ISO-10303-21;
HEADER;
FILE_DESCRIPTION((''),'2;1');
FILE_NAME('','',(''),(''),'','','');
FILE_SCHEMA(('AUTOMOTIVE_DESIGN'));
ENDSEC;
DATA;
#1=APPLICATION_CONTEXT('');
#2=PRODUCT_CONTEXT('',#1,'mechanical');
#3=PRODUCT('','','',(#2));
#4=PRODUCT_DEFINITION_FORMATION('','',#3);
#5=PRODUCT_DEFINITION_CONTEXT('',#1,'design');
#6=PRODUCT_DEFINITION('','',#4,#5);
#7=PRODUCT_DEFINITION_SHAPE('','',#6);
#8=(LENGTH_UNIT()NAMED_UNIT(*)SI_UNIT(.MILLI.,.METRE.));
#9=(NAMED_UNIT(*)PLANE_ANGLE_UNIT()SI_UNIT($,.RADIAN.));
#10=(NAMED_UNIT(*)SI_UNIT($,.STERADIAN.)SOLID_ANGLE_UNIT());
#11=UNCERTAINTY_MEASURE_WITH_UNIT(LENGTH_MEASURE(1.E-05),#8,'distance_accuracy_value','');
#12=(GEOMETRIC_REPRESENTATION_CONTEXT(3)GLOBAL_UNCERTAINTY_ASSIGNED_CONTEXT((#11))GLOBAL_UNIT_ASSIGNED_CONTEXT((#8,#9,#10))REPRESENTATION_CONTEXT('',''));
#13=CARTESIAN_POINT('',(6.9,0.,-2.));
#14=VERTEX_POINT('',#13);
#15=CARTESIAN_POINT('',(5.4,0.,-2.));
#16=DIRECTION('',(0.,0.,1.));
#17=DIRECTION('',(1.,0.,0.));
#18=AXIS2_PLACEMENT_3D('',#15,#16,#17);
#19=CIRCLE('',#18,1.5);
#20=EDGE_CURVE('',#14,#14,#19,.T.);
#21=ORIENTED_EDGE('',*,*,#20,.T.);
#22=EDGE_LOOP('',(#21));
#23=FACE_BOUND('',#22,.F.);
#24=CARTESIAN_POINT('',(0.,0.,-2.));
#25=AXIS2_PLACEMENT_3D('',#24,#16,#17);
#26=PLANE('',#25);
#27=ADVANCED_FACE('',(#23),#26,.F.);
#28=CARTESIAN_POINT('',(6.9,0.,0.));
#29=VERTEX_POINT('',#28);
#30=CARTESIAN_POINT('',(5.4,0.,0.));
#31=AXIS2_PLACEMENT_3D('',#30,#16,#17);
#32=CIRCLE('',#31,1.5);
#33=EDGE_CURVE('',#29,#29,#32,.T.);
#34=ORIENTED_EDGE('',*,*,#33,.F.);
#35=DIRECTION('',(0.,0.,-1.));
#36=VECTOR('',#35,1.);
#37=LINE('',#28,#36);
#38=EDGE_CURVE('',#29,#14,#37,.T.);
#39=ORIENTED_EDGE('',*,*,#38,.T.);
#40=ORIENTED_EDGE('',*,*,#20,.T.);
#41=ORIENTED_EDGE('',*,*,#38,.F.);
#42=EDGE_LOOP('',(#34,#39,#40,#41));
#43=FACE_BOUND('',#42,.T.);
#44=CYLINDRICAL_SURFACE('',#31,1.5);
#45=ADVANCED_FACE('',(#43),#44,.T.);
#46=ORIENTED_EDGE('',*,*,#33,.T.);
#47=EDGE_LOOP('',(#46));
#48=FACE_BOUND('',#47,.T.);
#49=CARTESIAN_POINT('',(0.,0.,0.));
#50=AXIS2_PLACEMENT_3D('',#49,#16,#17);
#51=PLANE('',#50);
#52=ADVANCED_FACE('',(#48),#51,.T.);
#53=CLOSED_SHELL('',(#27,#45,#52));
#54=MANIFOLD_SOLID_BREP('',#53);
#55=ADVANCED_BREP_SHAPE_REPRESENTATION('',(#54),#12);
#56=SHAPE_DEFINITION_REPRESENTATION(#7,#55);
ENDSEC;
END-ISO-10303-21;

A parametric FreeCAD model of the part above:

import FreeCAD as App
import Part
import Sketcher
Q = App.Units.Quantity

doc = App.newDocument("Part")
body = doc.addObject("PartDesign::Body", "Body")

# Sketch on XY plane
sketch1 = body.newObject("Sketcher::SketchObject", "Sketch")
sketch1.AttachmentSupport = (doc.getObject("XY_Plane"), [""])
sketch1.MapMode = "FlatFace"
sketch1.addGeometry(Part.Circle(App.Vector(5.4, 0, 0), App.Vector(0, 0, 1), 1.5), False)
sketch1.addConstraint(Sketcher.Constraint("PointOnObject", 0, 3, -1))
sketch1.addConstraint(Sketcher.Constraint("Diameter", 0, Q("3 mm")))
sketch1.addConstraint(Sketcher.Constraint("DistanceX", -1, 1, 0, 3, Q("5.4 mm")))
pad1 = body.newObject("PartDesign::Pad", "Pad")
pad1.Profile = sketch1
pad1.Length = 2
pad1.Reversed = True

doc.recompute()
